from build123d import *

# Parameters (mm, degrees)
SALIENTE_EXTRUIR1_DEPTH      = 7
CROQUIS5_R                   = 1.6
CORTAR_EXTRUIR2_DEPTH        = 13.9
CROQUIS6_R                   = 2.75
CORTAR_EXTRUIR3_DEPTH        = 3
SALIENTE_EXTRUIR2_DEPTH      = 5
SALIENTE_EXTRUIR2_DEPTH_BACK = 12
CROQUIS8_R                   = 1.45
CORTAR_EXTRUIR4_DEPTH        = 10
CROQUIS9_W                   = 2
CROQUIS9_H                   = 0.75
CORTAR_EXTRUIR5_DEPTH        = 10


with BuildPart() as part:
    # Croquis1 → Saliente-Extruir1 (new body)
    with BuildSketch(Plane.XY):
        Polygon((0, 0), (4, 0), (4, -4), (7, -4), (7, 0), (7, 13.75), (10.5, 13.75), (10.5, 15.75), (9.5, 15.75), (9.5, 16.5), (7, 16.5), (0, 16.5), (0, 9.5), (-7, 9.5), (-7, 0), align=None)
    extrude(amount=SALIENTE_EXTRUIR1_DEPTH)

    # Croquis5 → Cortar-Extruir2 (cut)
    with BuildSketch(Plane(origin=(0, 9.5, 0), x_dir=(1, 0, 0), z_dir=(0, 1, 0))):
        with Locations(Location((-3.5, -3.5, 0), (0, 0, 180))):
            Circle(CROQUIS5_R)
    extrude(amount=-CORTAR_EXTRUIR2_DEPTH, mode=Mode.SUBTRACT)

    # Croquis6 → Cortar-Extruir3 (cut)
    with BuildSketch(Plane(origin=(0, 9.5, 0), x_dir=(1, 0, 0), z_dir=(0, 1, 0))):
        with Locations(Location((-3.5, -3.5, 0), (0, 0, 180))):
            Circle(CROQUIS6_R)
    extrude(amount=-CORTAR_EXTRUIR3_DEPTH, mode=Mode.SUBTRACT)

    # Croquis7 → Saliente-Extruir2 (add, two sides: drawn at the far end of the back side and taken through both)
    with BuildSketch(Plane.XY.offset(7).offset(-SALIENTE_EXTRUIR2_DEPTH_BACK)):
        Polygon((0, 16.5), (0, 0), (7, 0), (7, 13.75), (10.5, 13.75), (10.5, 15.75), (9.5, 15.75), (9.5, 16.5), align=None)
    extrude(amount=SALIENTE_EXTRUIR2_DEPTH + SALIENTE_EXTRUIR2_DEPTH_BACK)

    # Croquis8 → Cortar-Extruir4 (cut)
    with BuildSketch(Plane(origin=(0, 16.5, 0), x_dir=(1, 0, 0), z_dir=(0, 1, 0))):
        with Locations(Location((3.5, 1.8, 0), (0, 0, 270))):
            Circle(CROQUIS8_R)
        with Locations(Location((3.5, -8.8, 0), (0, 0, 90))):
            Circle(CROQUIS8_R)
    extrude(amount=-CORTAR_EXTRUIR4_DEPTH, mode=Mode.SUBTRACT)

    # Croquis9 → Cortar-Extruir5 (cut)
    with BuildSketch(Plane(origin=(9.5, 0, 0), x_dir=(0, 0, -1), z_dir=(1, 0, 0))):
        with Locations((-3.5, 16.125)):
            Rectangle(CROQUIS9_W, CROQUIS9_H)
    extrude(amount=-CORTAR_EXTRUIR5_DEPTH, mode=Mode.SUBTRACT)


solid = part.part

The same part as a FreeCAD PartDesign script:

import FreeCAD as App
import Part
import Sketcher

V = App.Vector
Q = App.Units.Quantity


def add_polygon(sketch, points):
    """Adds a closed chain of lines whose ends are joined by coincident constraints."""
    first, n = sketch.GeometryCount, len(points)
    for a, b in zip(points, points[1:] + points[:1]):
        sketch.addGeometry(Part.LineSegment(App.Vector(*a, 0), App.Vector(*b, 0)), False)
    for i in range(n):
        sketch.addConstraint(Sketcher.Constraint("Coincident", first + i, 2, first + (i + 1) % n, 1))

doc = App.newDocument("Part")
body = doc.addObject("PartDesign::Body", "Body")

# Sketch on XY plane
sketch1 = body.newObject("Sketcher::SketchObject", "Sketch")
sketch1.AttachmentSupport = (doc.getObject("XY_Plane"), [""])
sketch1.MapMode = "FlatFace"
add_polygon(sketch1, [(4, 0), (4, -4), (7, -4), (7, 13.8), (10.5, 13.8), (10.5, 15.8), (9.5, 15.8), (9.5, 16.5), (0, 16.5), (0, 9.5), (-7, 9.5), (-7, 0)])  # lines 0-11
sketch1.addConstraint([
    Sketcher.Constraint("Vertical", 0),
    Sketcher.Constraint("Horizontal", 1),
    Sketcher.Constraint("Vertical", 2),
    Sketcher.Constraint("Horizontal", 3),
    Sketcher.Constraint("Vertical", 4),
    Sketcher.Constraint("Horizontal", 5),
    Sketcher.Constraint("Vertical", 6),
    Sketcher.Constraint("Horizontal", 7),
    Sketcher.Constraint("Vertical", 8),
    Sketcher.Constraint("Horizontal", 9),
    Sketcher.Constraint("Vertical", 10),
    Sketcher.Constraint("Horizontal", 11),
    Sketcher.Constraint("PointOnObject", 7, 2, -2),
    Sketcher.Constraint("PointOnObject", 10, 2, -1),
    Sketcher.Constraint("Equal", 9, 8),
    Sketcher.Constraint("Equal", 7, 10),
    Sketcher.Constraint("DistanceX", 1, 1, 1, 2, Q("3 mm")),
    Sketcher.Constraint("DistanceX", 5, 2, 5, 1, Q("1 mm")),
    Sketcher.Constraint("DistanceX", 9, 2, 9, 1, Q("7 mm")),
    Sketcher.Constraint("DistanceX", 11, 1, 11, 2, Q("11 mm")),
    Sketcher.Constraint("DistanceY", 0, 2, 0, 1, Q("4 mm")),
    Sketcher.Constraint("DistanceY", 4, 1, 4, 2, Q("2 mm")),
    Sketcher.Constraint("DistanceX", 3, 1, 3, 2, Q("3.5 mm")),
    Sketcher.Constraint("DistanceY", 2, 1, 2, 2, Q("17.75 mm")),
])
pad1 = body.newObject("PartDesign::Pad", "Pad")
pad1.Profile = sketch1
pad1.Length = 7

# Sketch on XZ plane
sketch2 = body.newObject("Sketcher::SketchObject", "Sketch001")
sketch2.AttachmentSupport = (doc.getObject("XZ_Plane"), [""])
sketch2.MapMode = "FlatFace"
sketch2.AttachmentOffset = App.Placement(V(0, 0, -9.5), App.Rotation())
sketch2.addGeometry(Part.Circle(V(-3.5, 3.5, 0), V(0, 0, 1), 1.6), False)
sketch2.addConstraint([
    Sketcher.Constraint("Diameter", 0, Q("3.2 mm")),
    Sketcher.Constraint("DistanceX", 0, 3, -1, 1, Q("3.5 mm")),
    Sketcher.Constraint("DistanceY", -1, 1, 0, 3, Q("3.5 mm")),
])
pocket1 = body.newObject("PartDesign::Pocket", "Pocket")
pocket1.Profile = sketch2
pocket1.Length = 13.9
pocket1.Reversed = True

# Sketch on XZ plane
sketch3 = body.newObject("Sketcher::SketchObject", "Sketch002")
sketch3.AttachmentSupport = (doc.getObject("XZ_Plane"), [""])
sketch3.MapMode = "FlatFace"
sketch3.AttachmentOffset = App.Placement(V(0, 0, -9.5), App.Rotation())
sketch3.addGeometry(Part.Circle(V(-3.5, 3.5, 0), V(0, 0, 1), 2.8), False)
sketch3.addConstraint([
    Sketcher.Constraint("Diameter", 0, Q("5.5 mm")),
    Sketcher.Constraint("DistanceX", 0, 3, -1, 1, Q("3.5 mm")),
    Sketcher.Constraint("DistanceY", -1, 1, 0, 3, Q("3.5 mm")),
])
pocket2 = body.newObject("PartDesign::Pocket", "Pocket001")
pocket2.Profile = sketch3
pocket2.Length = 3
pocket2.Reversed = True

# Sketch on XY plane
sketch4 = body.newObject("Sketcher::SketchObject", "Sketch003")
sketch4.AttachmentSupport = (doc.getObject("XY_Plane"), [""])
sketch4.MapMode = "FlatFace"
sketch4.AttachmentOffset = App.Placement(V(0, 0, 7), App.Rotation())
add_polygon(sketch4, [(0, 16.5), (0, 0), (7, 0), (7, 13.8), (10.5, 13.8), (10.5, 15.8), (9.5, 15.8), (9.5, 16.5)])  # lines 0-7
sketch4.addConstraint([
    Sketcher.Constraint("Vertical", 0),
    Sketcher.Constraint("Horizontal", 1),
    Sketcher.Constraint("Vertical", 2),
    Sketcher.Constraint("Horizontal", 3),
    Sketcher.Constraint("Vertical", 4),
    Sketcher.Constraint("Horizontal", 5),
    Sketcher.Constraint("Vertical", 6),
    Sketcher.Constraint("Horizontal", 7),
    Sketcher.Constraint("Coincident", 0, 2, -1, 1),
    Sketcher.Constraint("DistanceX", 1, 1, 1, 2, Q("7 mm")),
    Sketcher.Constraint("DistanceX", 5, 2, 5, 1, Q("1 mm")),
    Sketcher.Constraint("DistanceY", 4, 1, 4, 2, Q("2 mm")),
    Sketcher.Constraint("DistanceX", 3, 1, 3, 2, Q("3.5 mm")),
    Sketcher.Constraint("DistanceY", 0, 2, 0, 1, Q("16.5 mm")),
    Sketcher.Constraint("DistanceY", 2, 1, 2, 2, Q("13.75 mm")),
])
pad2 = body.newObject("PartDesign::Pad", "Pad001")
pad2.Profile = sketch4
pad2.Type = "TwoLengths"
pad2.Length = 5
pad2.Length2 = 12

# Sketch on XZ plane
sketch5 = body.newObject("Sketcher::SketchObject", "Sketch004")
sketch5.AttachmentSupport = (doc.getObject("XZ_Plane"), [""])
sketch5.MapMode = "FlatFace"
sketch5.AttachmentOffset = App.Placement(V(0, 0, -16.5), App.Rotation())
sketch5.addGeometry([
    Part.Circle(V(3.5, -1.8, 0), V(0, 0, 1), 1.4),
    Part.Circle(V(3.5, 8.8, 0), V(0, 0, 1), 1.4),
], False)
sketch5.addConstraint([
    Sketcher.Constraint("Equal", 0, 1),
    Sketcher.Constraint("Vertical", 0, 3, 1, 3),
    Sketcher.Constraint("Diameter", 0, Q("2.9 mm")),
    Sketcher.Constraint("DistanceX", -1, 1, 0, 3, Q("3.5 mm")),
    Sketcher.Constraint("DistanceY", 0, 3, -1, 1, Q("1.8 mm")),
    Sketcher.Constraint("DistanceY", -1, 1, 1, 3, Q("8.8 mm")),
])
pocket3 = body.newObject("PartDesign::Pocket", "Pocket002")
pocket3.Profile = sketch5
pocket3.Length = 10
pocket3.Reversed = True

# Sketch on YZ plane
sketch6 = body.newObject("Sketcher::SketchObject", "Sketch005")
sketch6.AttachmentSupport = (doc.getObject("YZ_Plane"), [""])
sketch6.MapMode = "FlatFace"
sketch6.AttachmentOffset = App.Placement(V(0, 0, 9.5), App.Rotation())
add_polygon(sketch6, [(16.5, 4.5), (15.8, 4.5), (15.8, 2.5), (16.5, 2.5)])  # lines 0-3
sketch6.addConstraint([
    Sketcher.Constraint("Horizontal", 0),
    Sketcher.Constraint("Vertical", 1),
    Sketcher.Constraint("Horizontal", 2),
    Sketcher.Constraint("Vertical", 3),
    Sketcher.Constraint("DistanceY", 1, 2, 1, 1, Q("2 mm")),
    Sketcher.Constraint("DistanceX", 0, 2, 0, 1, Q("0.75 mm")),
    Sketcher.Constraint("DistanceY", -1, 1, 0, 2, Q("4.5 mm")),
    Sketcher.Constraint("DistanceX", -1, 1, 2, 2, Q("16.5 mm")),
])
pocket4 = body.newObject("PartDesign::Pocket", "Pocket003")
pocket4.Profile = sketch6
pocket4.Length = 10

doc.recompute()
